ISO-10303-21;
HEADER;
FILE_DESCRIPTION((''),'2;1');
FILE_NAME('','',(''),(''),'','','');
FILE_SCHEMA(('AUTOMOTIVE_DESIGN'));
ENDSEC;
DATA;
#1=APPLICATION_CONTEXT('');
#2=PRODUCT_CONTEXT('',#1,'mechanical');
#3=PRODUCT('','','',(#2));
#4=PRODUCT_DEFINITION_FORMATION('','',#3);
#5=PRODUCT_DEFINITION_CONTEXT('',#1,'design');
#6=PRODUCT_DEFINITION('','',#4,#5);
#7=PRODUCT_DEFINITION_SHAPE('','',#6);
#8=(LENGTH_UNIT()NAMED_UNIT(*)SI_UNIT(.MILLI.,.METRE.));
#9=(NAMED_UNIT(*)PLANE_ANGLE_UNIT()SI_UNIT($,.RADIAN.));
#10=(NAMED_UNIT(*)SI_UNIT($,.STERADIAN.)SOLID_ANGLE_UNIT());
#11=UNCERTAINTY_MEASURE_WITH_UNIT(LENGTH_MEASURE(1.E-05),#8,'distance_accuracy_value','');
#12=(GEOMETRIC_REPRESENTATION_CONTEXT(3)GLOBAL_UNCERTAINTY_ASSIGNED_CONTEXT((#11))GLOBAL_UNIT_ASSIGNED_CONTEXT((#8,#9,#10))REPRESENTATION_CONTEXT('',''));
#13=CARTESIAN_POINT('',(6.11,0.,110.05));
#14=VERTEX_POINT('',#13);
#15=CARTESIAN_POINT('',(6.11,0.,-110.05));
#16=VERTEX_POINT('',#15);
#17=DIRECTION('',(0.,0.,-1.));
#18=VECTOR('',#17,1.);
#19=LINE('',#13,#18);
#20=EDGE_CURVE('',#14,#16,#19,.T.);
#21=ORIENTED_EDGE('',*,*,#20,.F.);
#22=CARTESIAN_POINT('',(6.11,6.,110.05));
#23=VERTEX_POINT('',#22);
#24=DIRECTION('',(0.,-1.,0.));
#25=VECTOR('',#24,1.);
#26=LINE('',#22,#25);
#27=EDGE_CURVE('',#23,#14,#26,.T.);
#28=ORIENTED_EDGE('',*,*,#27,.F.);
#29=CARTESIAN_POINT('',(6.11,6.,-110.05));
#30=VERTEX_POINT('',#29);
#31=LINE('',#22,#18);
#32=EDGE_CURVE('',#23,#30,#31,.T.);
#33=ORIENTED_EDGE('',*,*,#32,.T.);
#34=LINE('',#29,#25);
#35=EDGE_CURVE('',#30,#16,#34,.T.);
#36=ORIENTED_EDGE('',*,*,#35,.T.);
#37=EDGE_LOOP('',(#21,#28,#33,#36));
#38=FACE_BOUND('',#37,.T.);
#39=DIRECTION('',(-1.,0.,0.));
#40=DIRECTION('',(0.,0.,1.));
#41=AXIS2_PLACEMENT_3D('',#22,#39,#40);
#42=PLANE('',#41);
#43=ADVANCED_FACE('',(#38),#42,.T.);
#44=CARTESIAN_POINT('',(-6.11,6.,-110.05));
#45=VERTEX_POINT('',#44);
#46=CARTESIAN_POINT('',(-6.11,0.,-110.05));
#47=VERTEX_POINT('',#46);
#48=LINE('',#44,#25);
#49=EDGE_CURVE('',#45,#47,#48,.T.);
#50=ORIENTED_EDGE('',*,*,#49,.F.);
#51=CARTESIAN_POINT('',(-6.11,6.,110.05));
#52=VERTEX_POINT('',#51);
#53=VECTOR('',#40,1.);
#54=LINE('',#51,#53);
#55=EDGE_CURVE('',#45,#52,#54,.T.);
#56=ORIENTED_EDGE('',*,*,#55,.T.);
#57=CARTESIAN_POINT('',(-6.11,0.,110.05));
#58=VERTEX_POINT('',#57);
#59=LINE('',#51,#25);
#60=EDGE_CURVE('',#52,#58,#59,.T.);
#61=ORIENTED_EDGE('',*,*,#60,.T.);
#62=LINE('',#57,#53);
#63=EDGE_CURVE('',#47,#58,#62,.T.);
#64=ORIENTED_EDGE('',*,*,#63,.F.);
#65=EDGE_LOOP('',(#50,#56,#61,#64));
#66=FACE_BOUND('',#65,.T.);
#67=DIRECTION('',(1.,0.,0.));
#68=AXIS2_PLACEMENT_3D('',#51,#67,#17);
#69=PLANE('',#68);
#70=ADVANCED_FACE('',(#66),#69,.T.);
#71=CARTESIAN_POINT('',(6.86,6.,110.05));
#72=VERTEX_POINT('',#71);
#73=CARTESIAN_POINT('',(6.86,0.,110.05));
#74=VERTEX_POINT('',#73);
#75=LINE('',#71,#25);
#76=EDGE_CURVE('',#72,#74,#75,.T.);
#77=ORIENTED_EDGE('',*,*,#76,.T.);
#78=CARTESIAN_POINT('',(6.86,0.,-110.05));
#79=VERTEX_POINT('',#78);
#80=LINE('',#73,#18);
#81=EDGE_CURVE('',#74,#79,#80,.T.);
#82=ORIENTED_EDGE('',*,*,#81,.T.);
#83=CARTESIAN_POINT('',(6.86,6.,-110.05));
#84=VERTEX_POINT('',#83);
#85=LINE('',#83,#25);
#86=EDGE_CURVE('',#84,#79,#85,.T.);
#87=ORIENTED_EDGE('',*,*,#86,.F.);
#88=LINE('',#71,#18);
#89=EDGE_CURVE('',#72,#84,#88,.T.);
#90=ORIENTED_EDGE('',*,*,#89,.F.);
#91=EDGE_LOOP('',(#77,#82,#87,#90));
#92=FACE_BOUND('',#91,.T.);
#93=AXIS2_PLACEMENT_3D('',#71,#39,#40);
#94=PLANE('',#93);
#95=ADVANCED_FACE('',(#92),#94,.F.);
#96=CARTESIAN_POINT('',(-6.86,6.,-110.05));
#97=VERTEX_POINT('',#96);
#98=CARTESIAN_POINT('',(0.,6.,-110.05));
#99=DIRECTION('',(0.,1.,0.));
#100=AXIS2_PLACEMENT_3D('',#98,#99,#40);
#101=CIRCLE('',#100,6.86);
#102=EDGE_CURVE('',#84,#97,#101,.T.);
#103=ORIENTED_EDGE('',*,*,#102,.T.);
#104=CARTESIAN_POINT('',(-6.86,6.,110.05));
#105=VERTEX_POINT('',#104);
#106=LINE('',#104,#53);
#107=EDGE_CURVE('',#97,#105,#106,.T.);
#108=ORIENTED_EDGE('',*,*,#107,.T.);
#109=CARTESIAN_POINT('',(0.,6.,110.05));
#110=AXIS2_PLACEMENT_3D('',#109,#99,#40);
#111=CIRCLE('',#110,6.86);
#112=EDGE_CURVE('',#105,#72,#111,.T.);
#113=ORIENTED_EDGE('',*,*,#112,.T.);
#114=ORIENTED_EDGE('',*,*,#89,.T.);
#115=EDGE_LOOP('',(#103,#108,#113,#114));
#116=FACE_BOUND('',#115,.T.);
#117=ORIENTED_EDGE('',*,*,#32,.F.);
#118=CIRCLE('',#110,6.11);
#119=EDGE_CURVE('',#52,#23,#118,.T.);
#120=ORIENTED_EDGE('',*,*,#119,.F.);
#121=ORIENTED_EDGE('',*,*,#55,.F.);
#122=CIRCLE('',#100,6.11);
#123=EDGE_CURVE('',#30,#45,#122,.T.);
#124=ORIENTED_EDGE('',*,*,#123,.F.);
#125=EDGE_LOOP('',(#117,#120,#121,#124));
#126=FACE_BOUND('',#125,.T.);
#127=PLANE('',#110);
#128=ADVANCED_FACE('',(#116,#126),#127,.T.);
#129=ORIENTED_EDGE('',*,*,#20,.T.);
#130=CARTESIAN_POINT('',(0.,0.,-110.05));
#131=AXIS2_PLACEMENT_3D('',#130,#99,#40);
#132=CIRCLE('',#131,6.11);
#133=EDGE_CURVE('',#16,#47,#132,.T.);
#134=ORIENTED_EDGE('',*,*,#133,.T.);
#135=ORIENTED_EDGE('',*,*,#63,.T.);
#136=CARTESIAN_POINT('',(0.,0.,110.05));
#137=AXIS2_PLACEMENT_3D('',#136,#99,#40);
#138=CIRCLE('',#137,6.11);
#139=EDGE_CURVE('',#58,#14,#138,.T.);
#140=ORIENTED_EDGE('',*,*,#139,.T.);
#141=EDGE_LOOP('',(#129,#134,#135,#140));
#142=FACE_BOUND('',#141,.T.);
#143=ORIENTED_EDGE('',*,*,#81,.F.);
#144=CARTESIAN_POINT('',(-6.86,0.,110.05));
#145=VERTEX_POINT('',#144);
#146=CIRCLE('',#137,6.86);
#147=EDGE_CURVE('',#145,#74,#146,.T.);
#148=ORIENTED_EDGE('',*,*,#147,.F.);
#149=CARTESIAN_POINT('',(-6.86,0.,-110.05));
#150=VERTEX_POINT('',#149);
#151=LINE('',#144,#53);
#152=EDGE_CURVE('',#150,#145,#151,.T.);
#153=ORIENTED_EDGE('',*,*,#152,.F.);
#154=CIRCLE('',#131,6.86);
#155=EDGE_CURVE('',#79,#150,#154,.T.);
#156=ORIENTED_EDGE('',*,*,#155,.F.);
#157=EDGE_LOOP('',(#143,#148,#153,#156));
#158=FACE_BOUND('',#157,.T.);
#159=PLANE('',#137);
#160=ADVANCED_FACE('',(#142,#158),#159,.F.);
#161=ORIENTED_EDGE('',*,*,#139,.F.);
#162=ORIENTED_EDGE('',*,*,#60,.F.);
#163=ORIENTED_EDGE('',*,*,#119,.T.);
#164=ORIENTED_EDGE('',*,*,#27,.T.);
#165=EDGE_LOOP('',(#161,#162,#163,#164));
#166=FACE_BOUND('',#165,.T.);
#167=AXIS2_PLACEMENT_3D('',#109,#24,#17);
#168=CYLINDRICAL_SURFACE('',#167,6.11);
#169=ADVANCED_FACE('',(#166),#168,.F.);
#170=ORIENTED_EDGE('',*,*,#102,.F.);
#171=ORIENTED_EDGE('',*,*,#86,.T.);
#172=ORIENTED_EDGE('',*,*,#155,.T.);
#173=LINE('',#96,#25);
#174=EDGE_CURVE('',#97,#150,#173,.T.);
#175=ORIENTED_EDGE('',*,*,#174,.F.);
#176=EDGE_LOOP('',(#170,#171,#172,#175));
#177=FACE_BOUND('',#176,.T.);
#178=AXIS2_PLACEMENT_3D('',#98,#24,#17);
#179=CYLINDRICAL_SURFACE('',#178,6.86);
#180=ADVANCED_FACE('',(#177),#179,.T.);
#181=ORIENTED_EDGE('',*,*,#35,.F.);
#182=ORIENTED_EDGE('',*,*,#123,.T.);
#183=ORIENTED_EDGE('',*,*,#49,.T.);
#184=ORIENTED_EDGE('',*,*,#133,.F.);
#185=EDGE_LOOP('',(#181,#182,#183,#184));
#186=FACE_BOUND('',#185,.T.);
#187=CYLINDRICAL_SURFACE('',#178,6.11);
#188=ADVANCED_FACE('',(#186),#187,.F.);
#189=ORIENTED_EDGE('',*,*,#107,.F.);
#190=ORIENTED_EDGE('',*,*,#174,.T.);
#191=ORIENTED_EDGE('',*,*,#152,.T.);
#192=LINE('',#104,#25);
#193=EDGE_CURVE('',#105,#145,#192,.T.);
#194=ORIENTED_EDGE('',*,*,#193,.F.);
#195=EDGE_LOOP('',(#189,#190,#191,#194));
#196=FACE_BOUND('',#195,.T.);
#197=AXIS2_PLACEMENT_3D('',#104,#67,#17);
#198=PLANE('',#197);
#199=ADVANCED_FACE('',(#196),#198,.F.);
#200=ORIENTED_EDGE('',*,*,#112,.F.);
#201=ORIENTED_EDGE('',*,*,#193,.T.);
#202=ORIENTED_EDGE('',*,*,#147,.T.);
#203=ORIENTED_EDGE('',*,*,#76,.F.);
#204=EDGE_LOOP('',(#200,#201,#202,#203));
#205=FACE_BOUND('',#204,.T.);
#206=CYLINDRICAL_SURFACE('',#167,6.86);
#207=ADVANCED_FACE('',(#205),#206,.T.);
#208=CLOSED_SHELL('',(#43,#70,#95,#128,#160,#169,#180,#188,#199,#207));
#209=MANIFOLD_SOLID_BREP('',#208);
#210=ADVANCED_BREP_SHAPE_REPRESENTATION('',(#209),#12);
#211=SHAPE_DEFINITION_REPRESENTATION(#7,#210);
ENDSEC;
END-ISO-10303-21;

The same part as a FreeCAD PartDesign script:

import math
import FreeCAD as App
import Part
import Sketcher
from FreeCAD import Vector

doc = App.newDocument("Part")
body = doc.addObject("PartDesign::Body", "Body")

# Sketch on XZ plane
sketch1 = body.newObject("Sketcher::SketchObject", "Sketch")
sketch1.AttachmentSupport = (doc.getObject("XZ_Plane"), [""])
sketch1.MapMode = "FlatFace"
sketch1.addGeometry([
    Part.LineSegment(Vector(-6.86, -110.05, 0), Vector(-6.86, 110.05, 0)),  # 0
    Part.ArcOfCircle(Part.Circle(Vector(0, 110.05, 0), Vector(0, 0, 1), 6.86), math.radians(0), math.radians(180)),  # 1
    Part.LineSegment(Vector(6.86, 110.05, 0), Vector(6.86, -110.05, 0)),  # 2
    Part.ArcOfCircle(Part.Circle(Vector(0, -110.05, 0), Vector(0, 0, 1), 6.86), math.radians(180), math.radians(360)),  # 3
    Part.LineSegment(Vector(-6.11, 110.05, 0), Vector(-6.11, -110.05, 0)),  # 4
    Part.ArcOfCircle(Part.Circle(Vector(0, -110.05, 0), Vector(0, 0, 1), 6.11), math.radians(180), math.radians(360)),  # 5
    Part.LineSegment(Vector(6.11, -110.05, 0), Vector(6.11, 110.05, 0)),  # 6
    Part.ArcOfCircle(Part.Circle(Vector(0, 110.05, 0), Vector(0, 0, 1), 6.11), math.radians(0), math.radians(180)),  # 7
], False)
sketch1.addConstraint([
    Sketcher.Constraint("Tangent", 0, 2, 1, 2),
    Sketcher.Constraint("Tangent", 1, 1, 2, 1),
    Sketcher.Constraint("Tangent", 2, 2, 3, 2),
    Sketcher.Constraint("Tangent", 3, 1, 0, 1),
    Sketcher.Constraint("Tangent", 4, 2, 5, 1),
    Sketcher.Constraint("Tangent", 5, 2, 6, 1),
    Sketcher.Constraint("Tangent", 6, 2, 7, 1),
    Sketcher.Constraint("Tangent", 7, 2, 4, 1),
    Sketcher.Constraint("Vertical", 0),
    Sketcher.Constraint("Vertical", 2),
    Sketcher.Constraint("Vertical", 4),
    Sketcher.Constraint("Vertical", 6),
    Sketcher.Constraint("Coincident", 5, 3, 3, 3),
    Sketcher.Constraint("Symmetric", 1, 3, 3, 3, -1, 1),
    Sketcher.Constraint("Horizontal", 7, 3, 0, 2),
    Sketcher.Constraint("Radius", 1, 6.86),
    Sketcher.Constraint("Radius", 5, 6.11),
    Sketcher.Constraint("DistanceY", 0, 1, 0, 2, 220.1),
])
pad1 = body.newObject("PartDesign::Pad", "Pad")
pad1.Profile = sketch1
pad1.Length = 6
pad1.Reversed = True

doc.recompute()
